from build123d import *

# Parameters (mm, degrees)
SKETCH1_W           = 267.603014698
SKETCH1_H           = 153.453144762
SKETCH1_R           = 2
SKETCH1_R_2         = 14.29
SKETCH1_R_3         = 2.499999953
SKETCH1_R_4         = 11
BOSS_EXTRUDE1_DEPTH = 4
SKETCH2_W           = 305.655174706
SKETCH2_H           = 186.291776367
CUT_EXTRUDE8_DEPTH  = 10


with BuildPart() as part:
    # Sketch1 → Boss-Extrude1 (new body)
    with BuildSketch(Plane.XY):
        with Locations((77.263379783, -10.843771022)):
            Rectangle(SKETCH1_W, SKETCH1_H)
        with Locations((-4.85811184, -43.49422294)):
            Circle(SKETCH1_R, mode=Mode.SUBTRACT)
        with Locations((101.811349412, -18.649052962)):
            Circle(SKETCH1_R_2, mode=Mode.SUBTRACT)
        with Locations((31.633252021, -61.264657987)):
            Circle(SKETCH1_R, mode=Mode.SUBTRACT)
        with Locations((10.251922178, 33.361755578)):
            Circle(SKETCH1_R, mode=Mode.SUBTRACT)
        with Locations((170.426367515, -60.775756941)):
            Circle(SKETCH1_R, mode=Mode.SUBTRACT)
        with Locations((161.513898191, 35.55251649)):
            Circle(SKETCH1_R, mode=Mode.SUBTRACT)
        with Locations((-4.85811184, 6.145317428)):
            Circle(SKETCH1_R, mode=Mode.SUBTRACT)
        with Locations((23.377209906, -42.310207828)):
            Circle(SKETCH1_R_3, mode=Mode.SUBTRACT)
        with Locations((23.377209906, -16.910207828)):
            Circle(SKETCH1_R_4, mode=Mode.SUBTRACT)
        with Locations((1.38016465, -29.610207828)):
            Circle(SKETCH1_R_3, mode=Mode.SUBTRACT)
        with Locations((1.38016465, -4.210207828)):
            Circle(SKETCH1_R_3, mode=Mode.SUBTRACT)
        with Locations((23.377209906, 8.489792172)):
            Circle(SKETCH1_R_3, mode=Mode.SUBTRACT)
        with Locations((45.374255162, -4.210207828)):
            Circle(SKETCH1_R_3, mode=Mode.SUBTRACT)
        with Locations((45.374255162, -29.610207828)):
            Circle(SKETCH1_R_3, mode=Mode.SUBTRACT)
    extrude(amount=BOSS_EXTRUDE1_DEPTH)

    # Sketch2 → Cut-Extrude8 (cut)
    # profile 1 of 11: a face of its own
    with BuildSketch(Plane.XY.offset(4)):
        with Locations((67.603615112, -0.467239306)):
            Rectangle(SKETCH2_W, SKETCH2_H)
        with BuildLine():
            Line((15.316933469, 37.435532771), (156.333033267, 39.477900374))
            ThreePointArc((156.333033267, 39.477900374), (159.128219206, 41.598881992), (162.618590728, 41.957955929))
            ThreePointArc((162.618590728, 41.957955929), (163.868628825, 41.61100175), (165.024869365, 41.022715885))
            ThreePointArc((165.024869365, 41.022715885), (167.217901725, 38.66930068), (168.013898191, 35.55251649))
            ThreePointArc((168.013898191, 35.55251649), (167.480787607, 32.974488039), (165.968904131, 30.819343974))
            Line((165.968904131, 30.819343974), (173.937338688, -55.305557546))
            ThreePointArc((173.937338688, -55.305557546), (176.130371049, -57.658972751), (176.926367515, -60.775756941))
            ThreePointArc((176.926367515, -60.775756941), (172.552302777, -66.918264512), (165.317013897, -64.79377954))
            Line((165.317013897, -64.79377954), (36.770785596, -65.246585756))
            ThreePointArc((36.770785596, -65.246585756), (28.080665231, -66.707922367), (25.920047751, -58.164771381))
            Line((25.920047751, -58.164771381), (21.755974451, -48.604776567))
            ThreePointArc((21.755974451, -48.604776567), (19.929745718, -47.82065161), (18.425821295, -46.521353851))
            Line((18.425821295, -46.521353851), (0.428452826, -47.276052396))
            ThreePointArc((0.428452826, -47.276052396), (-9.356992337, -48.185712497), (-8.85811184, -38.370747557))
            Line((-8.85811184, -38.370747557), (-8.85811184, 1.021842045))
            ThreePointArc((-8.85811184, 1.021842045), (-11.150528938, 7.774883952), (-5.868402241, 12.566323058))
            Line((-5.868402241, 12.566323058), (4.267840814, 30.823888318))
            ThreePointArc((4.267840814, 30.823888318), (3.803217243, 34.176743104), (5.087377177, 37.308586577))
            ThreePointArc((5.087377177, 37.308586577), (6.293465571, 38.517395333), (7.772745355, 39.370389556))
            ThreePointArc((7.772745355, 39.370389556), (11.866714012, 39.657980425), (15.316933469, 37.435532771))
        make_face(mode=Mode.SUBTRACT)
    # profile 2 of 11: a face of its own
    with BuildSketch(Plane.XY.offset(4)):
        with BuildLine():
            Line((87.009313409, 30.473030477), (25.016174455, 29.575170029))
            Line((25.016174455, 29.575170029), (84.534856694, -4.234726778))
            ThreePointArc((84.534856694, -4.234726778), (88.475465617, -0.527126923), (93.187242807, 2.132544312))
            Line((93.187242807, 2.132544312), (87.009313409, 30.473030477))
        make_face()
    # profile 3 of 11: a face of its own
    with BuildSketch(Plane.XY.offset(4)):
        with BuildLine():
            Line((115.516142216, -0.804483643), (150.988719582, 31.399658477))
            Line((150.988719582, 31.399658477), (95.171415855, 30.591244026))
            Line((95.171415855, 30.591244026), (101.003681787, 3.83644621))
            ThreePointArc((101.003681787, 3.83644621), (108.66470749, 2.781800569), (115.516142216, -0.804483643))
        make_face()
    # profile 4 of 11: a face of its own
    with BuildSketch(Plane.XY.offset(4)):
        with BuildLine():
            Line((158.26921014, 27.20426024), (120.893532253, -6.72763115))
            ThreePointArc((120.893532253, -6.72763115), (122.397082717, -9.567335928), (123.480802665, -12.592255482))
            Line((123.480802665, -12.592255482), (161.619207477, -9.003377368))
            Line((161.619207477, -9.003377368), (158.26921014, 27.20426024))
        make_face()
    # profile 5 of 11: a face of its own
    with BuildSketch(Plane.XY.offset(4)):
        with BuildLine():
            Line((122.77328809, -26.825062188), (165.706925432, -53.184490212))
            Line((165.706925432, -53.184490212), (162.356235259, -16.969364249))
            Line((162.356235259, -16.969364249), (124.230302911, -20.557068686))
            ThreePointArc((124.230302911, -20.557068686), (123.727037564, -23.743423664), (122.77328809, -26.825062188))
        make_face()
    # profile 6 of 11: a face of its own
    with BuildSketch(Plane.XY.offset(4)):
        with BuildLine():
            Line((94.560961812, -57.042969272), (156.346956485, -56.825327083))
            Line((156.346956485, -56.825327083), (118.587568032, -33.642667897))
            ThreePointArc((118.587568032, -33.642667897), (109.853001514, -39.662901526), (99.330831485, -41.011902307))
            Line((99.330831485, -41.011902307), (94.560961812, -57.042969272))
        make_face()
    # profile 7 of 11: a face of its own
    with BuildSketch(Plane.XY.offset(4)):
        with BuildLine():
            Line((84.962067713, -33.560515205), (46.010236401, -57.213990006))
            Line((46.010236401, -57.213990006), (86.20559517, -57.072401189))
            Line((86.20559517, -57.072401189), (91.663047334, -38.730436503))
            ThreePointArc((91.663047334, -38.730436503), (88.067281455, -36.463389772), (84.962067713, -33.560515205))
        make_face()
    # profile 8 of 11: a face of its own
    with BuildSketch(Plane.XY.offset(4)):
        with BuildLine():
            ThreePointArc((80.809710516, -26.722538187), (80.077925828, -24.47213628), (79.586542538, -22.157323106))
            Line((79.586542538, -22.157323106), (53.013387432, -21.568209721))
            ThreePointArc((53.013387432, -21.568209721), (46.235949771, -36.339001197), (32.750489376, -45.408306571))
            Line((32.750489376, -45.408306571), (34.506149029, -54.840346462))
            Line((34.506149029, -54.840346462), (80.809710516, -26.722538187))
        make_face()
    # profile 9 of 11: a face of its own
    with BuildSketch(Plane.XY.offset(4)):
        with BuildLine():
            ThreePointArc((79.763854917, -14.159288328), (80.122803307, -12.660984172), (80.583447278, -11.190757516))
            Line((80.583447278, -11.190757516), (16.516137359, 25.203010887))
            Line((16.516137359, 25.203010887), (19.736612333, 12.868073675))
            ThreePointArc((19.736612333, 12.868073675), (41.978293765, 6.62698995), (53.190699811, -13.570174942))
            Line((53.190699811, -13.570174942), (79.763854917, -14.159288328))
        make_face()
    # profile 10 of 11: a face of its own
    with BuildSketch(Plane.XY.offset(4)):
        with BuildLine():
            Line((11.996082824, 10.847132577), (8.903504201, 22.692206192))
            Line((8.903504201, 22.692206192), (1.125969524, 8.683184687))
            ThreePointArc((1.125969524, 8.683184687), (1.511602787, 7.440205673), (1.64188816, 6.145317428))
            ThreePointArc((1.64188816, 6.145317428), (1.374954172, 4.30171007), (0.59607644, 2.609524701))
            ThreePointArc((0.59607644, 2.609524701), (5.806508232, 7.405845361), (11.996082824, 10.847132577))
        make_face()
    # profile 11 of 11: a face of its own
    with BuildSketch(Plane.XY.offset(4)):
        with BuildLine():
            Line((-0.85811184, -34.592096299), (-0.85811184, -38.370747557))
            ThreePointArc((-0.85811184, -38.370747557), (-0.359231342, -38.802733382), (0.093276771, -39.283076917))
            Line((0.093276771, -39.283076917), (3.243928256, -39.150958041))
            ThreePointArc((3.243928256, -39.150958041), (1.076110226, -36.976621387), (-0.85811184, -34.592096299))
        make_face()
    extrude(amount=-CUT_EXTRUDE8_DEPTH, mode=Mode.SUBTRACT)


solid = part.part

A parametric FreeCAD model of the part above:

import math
import FreeCAD as App
import Part
import Sketcher

doc = App.newDocument("Part")
body = doc.addObject("PartDesign::Body", "Body")

# Sketch on XY plane
sketch1 = doc.addObject("Sketcher::SketchObject", "Sketch")
body.addObject(sketch1)
sketch1.AttachmentSupport = (doc.XY_Plane, [""])
sketch1.MapMode = "FlatFace"
sketch1.addGeometry([
    Part.LineSegment(App.Vector(-56.538128, 65.882801, 0), App.Vector(-56.538128, -87.570343, 0)),  # 0
    Part.LineSegment(App.Vector(-56.538128, -87.570343, 0), App.Vector(211.064887, -87.570343, 0)),  # 1
    Part.LineSegment(App.Vector(211.064887, -87.570343, 0), App.Vector(211.064887, 65.882801, 0)),  # 2
    Part.LineSegment(App.Vector(211.064887, 65.882801, 0), App.Vector(-56.538128, 65.882801, 0)),  # 3
    Part.Circle(App.Vector(31.633252, -61.264658, 0), App.Vector(0, 0, 1), 2),  # 4
    Part.Circle(App.Vector(-4.858112, -43.494223, 0), App.Vector(0, 0, 1), 2),  # 5
    Part.Circle(App.Vector(23.37721, -42.310208, 0), App.Vector(0, 0, 1), 2.5),  # 6
    Part.Circle(App.Vector(1.380165, -29.610208, 0), App.Vector(0, 0, 1), 2.5),  # 7
    Part.Circle(App.Vector(23.37721, -16.910208, 0), App.Vector(0, 0, 1), 11),  # 8
    Part.Circle(App.Vector(45.374255, -29.610208, 0), App.Vector(0, 0, 1), 2.5),  # 9
    Part.Circle(App.Vector(170.426368, -60.775757, 0), App.Vector(0, 0, 1), 2),  # 10
    Part.Circle(App.Vector(101.811349, -18.649053, 0), App.Vector(0, 0, 1), 14.29),  # 11
    Part.Circle(App.Vector(1.380165, -4.210208, 0), App.Vector(0, 0, 1), 2.5),  # 12
    Part.Circle(App.Vector(-4.858112, 6.145317, 0), App.Vector(0, 0, 1), 2),  # 13
    Part.Circle(App.Vector(23.37721, 8.489792, 0), App.Vector(0, 0, 1), 2.5),  # 14
    Part.Circle(App.Vector(45.374255, -4.210208, 0), App.Vector(0, 0, 1), 2.5),  # 15
    Part.Circle(App.Vector(10.251922, 33.361756, 0), App.Vector(0, 0, 1), 2),  # 16
    Part.Circle(App.Vector(161.513898, 35.552516, 0), App.Vector(0, 0, 1), 2),  # 17
], False)
sketch1.addConstraint([
    Sketcher.Constraint("Coincident", 0, 2, 1, 1),
    Sketcher.Constraint("Coincident", 1, 2, 2, 1),
    Sketcher.Constraint("Coincident", 2, 2, 3, 1),
    Sketcher.Constraint("Coincident", 3, 2, 0, 1),
    Sketcher.Constraint("Vertical", 0),
    Sketcher.Constraint("Horizontal", 1),
    Sketcher.Constraint("Vertical", 2),
    Sketcher.Constraint("Horizontal", 3),
    Sketcher.Constraint("Equal", 4, 5),
    Sketcher.Constraint("Equal", 6, 7),
    Sketcher.Constraint("Equal", 7, 9),
    Sketcher.Constraint("Equal", 5, 10),
    Sketcher.Constraint("Equal", 9, 12),
    Sketcher.Constraint("Equal", 10, 13),
    Sketcher.Constraint("Equal", 12, 14),
    Sketcher.Constraint("Equal", 14, 15),
    Sketcher.Constraint("Equal", 13, 16),
    Sketcher.Constraint("Equal", 16, 17),
    Sketcher.Constraint("Horizontal", 7, 3, 9, 3),
    Sketcher.Constraint("Horizontal", 12, 3, 15, 3),
    Sketcher.Constraint("Vertical", 6, 3, 8, 3),
    Sketcher.Constraint("Vertical", 7, 3, 12, 3),
    Sketcher.Constraint("Vertical", 5, 3, 13, 3),
    Sketcher.Constraint("Vertical", 8, 3, 14, 3),
    Sketcher.Constraint("Vertical", 9, 3, 15, 3),
    Sketcher.Constraint("Diameter", 4, 4.0),
    Sketcher.Constraint("Diameter", 6, 5.0),
    Sketcher.Constraint("Diameter", 8, 22.0),
    Sketcher.Constraint("Diameter", 11, 28.58),
    Sketcher.Constraint("DistanceY", 6, 3, 7, 3, 12.7),
    Sketcher.Constraint("DistanceY", 7, 3, 8, 3, 12.7),
    Sketcher.Constraint("DistanceY", 8, 3, 12, 3, 12.7),
    Sketcher.Constraint("DistanceY", 12, 3, 14, 3, 12.7),
    Sketcher.Constraint("DistanceX", -1, 1, 17, 3, 161.513898),
    Sketcher.Constraint("DistanceY", -1, 1, 2, 2, 65.882801),
    Sketcher.Constraint("DistanceY", 4, 3, 10, 3, 0.488901),
    Sketcher.Constraint("DistanceX", 1, 1, 1, 2, 267.603015),
    Sketcher.Constraint("DistanceY", 0, 2, 0, 1, 153.453145),
    Sketcher.Constraint("DistanceX", 5, 3, -1, 1, 4.858112),
    Sketcher.Constraint("DistanceX", -1, 1, 6, 3, 23.37721),
    Sketcher.Constraint("DistanceX", -1, 1, 11, 3, 101.811349),
    Sketcher.Constraint("DistanceY", 4, 3, 6, 3, 18.95445),
    Sketcher.Constraint("DistanceX", 7, 3, 9, 3, 43.994091),
    Sketcher.Constraint("DistanceX", 11, 3, 10, 3, 68.615018),
    Sketcher.Constraint("DistanceY", 5, 3, 13, 3, 49.63954),
    Sketcher.Constraint("DistanceY", 13, 3, 16, 3, 27.216438),
    Sketcher.Constraint("DistanceY", 11, 3, 17, 3, 54.201569),
    Sketcher.Constraint("DistanceY", 0, 2, 5, 3, 44.07612),
    Sketcher.Constraint("DistanceX", 0, 2, 4, 3, 88.17138),
    Sketcher.Constraint("DistanceX", 10, 3, 1, 2, 40.63852),
    Sketcher.Constraint("DistanceY", 1, 2, 11, 3, 68.92129),
    Sketcher.Constraint("DistanceX", 9, 3, 1, 2, 165.690632),
    Sketcher.Constraint("DistanceY", 10, 3, 2, 2, 126.658558),
    Sketcher.Constraint("DistanceX", 3, 2, 16, 3, 66.79005),
])
pad1 = doc.addObject("PartDesign::Pad", "Pad")
body.addObject(pad1)
pad1.Profile = sketch1
pad1.Length = 4

# Sketch on XY plane
sketch2 = doc.addObject("Sketcher::SketchObject", "Sketch001")
body.addObject(sketch2)
sketch2.AttachmentSupport = (doc.XY_Plane, [""])
sketch2.MapMode = "FlatFace"
sketch2.AttachmentOffset = App.Placement(App.Vector(0, 0, 4), App.Rotation())
sketch2.addGeometry([
    Part.LineSegment(App.Vector(-85.223972, 92.678649, 0), App.Vector(-85.223972, -93.613127, 0)),  # 0
    Part.LineSegment(App.Vector(-85.223972, -93.613127, 0), App.Vector(220.431202, -93.613127, 0)),  # 1
    Part.LineSegment(App.Vector(220.431202, -93.613127, 0), App.Vector(220.431202, 92.678649, 0)),  # 2
    Part.LineSegment(App.Vector(220.431202, 92.678649, 0), App.Vector(-85.223972, 92.678649, 0)),  # 3
    Part.ArcOfCircle(Part.Circle(App.Vector(10.251922, 33.361756, 0), App.Vector(0, 0, 1), 6.5), math.radians(38.809642), math.radians(112.421161)),  # 4
    Part.LineSegment(App.Vector(15.316933, 37.435533, 0), App.Vector(156.333033, 39.4779, 0)),  # 5
    Part.ArcOfCircle(Part.Circle(App.Vector(161.513898, 35.552516, 0), App.Vector(0, 0, 1), 6.5), math.radians(80.214931), math.radians(142.849897)),  # 6
    Part.ArcOfCircle(Part.Circle(App.Vector(161.513898, 35.552516, 0), App.Vector(0, 0, 1), 6.5), math.radians(57.30619), math.radians(80.214931)),  # 7
    Part.ArcOfCircle(Part.Circle(App.Vector(161.513898, 35.552516, 0), App.Vector(0, 0, 1), 6.5), math.radians(0), math.radians(57.306189)),  # 8
    Part.ArcOfCircle(Part.Circle(App.Vector(161.513898, 35.552516, 0), App.Vector(0, 0, 1), 6.5), math.radians(-46.734066), math.radians(0)),  # 9
    Part.LineSegment(App.Vector(165.968904, 30.819344, 0), App.Vector(173.937339, -55.305558, 0)),  # 10
    Part.ArcOfCircle(Part.Circle(App.Vector(170.426368, -60.775757, 0), App.Vector(0, 0, 1), 6.5), math.radians(0), math.radians(57.30619)),  # 11
    Part.ArcOfCircle(Part.Circle(App.Vector(170.426368, -60.775757, 0), App.Vector(0, 0, 1), 6.5), math.radians(-141.818303), math.radians(0)),  # 12
    Part.LineSegment(App.Vector(165.317014, -64.79378, 0), App.Vector(36.770786, -65.246586, 0)),  # 13
    Part.ArcOfCircle(Part.Circle(App.Vector(31.633252, -61.264658, 0), App.Vector(0, 0, 1), 6.5), math.radians(151.516502), math.radians(322.221952)),  # 14
    Part.LineSegment(App.Vector(25.920048, -58.164771, 0), App.Vector(21.755974, -48.604777, 0)),  # 15
    Part.ArcOfCircle(Part.Circle(App.Vector(23.37721, -42.310208, 0), App.Vector(0, 0, 1), 6.5), math.radians(-139.618903), math.radians(-104.443243)),  # 16
    Part.LineSegment(App.Vector(18.425821, -46.521354, 0), App.Vector(0.428453, -47.276052, 0)),  # 17
    Part.ArcOfCircle(Part.Circle(App.Vector(-4.858112, -43.494223, 0), App.Vector(0, 0, 1), 6.5), math.radians(127.979872), math.radians(324.421352)),  # 18
    Part.LineSegment(App.Vector(-8.858112, -38.370748, 0), App.Vector(-8.858112, 1.021842, 0)),  # 19
    Part.ArcOfCircle(Part.Circle(App.Vector(-4.858112, 6.145317, 0), App.Vector(0, 0, 1), 6.5), math.radians(98.941695), math.radians(232.020128)),  # 20
    Part.LineSegment(App.Vector(-5.868402, 12.566323, 0), App.Vector(4.267841, 30.823888, 0)),  # 21
    Part.ArcOfCircle(Part.Circle(App.Vector(10.251922, 33.361756, 0), App.Vector(0, 0, 1), 6.5), math.radians(142.612337), math.radians(202.98195)),  # 22
    Part.ArcOfCircle(Part.Circle(App.Vector(10.251922, 33.361756, 0), App.Vector(0, 0, 1), 6.5), math.radians(112.421161), math.radians(142.612337)),  # 23
    Part.LineSegment(App.Vector(87.009313, 30.47303, 0), App.Vector(25.016174, 29.57517, 0)),  # 24
    Part.LineSegment(App.Vector(25.016174, 29.57517, 0), App.Vector(84.534857, -4.234727, 0)),  # 25
    Part.ArcOfCircle(Part.Circle(App.Vector(101.811349, -18.649053, 0), App.Vector(0, 0, 1), 22.5), math.radians(112.537847), math.radians(140.160686)),  # 26
    Part.LineSegment(App.Vector(93.187243, 2.132544, 0), App.Vector(87.009313, 30.47303, 0)),  # 27
    Part.LineSegment(App.Vector(115.516142, -0.804484, 0), App.Vector(150.98872, 31.399658, 0)),  # 28
    Part.LineSegment(App.Vector(150.98872, 31.399658, 0), App.Vector(95.171416, 30.591244, 0)),  # 29
    Part.LineSegment(App.Vector(95.171416, 30.591244, 0), App.Vector(101.003682, 3.836446, 0)),  # 30
    Part.ArcOfCircle(Part.Circle(App.Vector(101.811349, -18.649053, 0), App.Vector(0, 0, 1), 22.5), math.radians(52.475407), math.radians(92.057151)),  # 31
    Part.LineSegment(App.Vector(158.26921, 27.20426, 0), App.Vector(120.893532, -6.727631, 0)),  # 32
    Part.ArcOfCircle(Part.Circle(App.Vector(101.811349, -18.649053, 0), App.Vector(0, 0, 1), 22.5), math.radians(15.616132), math.radians(31.99471)),  # 33
    Part.LineSegment(App.Vector(123.480803, -12.592255, 0), App.Vector(161.619207, -9.003377, 0)),  # 34
    Part.LineSegment(App.Vector(161.619207, -9.003377, 0), App.Vector(158.26921, 27.20426, 0)),  # 35
    Part.LineSegment(App.Vector(122.773288, -26.825062, 0), App.Vector(165.706925, -53.18449, 0)),  # 36
    Part.LineSegment(App.Vector(165.706925, -53.18449, 0), App.Vector(162.356235, -16.969364, 0)),  # 37
    Part.LineSegment(App.Vector(162.356235, -16.969364, 0), App.Vector(124.230303, -20.557069, 0)),  # 38
    Part.ArcOfCircle(Part.Circle(App.Vector(101.811349, -18.649053, 0), App.Vector(0, 0, 1), 22.5), math.radians(-21.307808), math.radians(-4.864564)),  # 39
    Part.LineSegment(App.Vector(94.560962, -57.042969, 0), App.Vector(156.346956, -56.825327, 0)),  # 40
    Part.LineSegment(App.Vector(156.346956, -56.825327, 0), App.Vector(118.587568, -33.642668, 0)),  # 41
    Part.ArcOfCircle(Part.Circle(App.Vector(101.811349, -18.649053, 0), App.Vector(0, 0, 1), 22.5), math.radians(-96.329453), math.radians(-41.788504)),  # 42
    Part.LineSegment(App.Vector(99.330831, -41.011902, 0), App.Vector(94.560962, -57.042969, 0)),  # 43
    Part.LineSegment(App.Vector(84.962068, -33.560515, 0), App.Vector(46.010236, -57.21399, 0)),  # 44
    Part.LineSegment(App.Vector(46.010236, -57.21399, 0), App.Vector(86.205595, -57.072401, 0)),  # 45
    Part.LineSegment(App.Vector(86.205595, -57.072401, 0), App.Vector(91.663047, -38.730437, 0)),  # 46
    Part.ArcOfCircle(Part.Circle(App.Vector(101.811349, -18.649053, 0), App.Vector(0, 0, 1), 22.5), math.radians(-138.491461), math.radians(-116.810149)),  # 47
    Part.ArcOfCircle(Part.Circle(App.Vector(101.811349, -18.649053, 0), App.Vector(0, 0, 1), 22.5), math.radians(-171.029662), math.radians(-158.972158)),  # 48
    Part.LineSegment(App.Vector(79.586543, -22.157323, 0), App.Vector(53.013387, -21.56821, 0)),  # 49
    Part.ArcOfCircle(Part.Circle(App.Vector(23.37721, -16.910208, 0), App.Vector(0, 0, 1), 30), math.radians(-71.793502), math.radians(-8.932266)),  # 50
    Part.LineSegment(App.Vector(32.750489, -45.408307, 0), App.Vector(34.506149, -54.840346, 0)),  # 51
    Part.LineSegment(App.Vector(34.506149, -54.840346, 0), App.Vector(80.809711, -26.722538, 0)),  # 52
    Part.ArcOfCircle(Part.Circle(App.Vector(101.811349, -18.649053, 0), App.Vector(0, 0, 1), 22.5), math.radians(160.641382), math.radians(168.489641)),  # 53
    Part.LineSegment(App.Vector(80.583447, -11.190758, 0), App.Vector(16.516137, 25.203011, 0)),  # 54
    Part.LineSegment(App.Vector(16.516137, 25.203011, 0), App.Vector(19.736612, 12.868074, 0)),  # 55
    Part.ArcOfCircle(Part.Circle(App.Vector(23.37721, -16.910208, 0), App.Vector(0, 0, 1), 30), math.radians(6.392245), math.radians(96.970209)),  # 56
    Part.LineSegment(App.Vector(53.1907, -13.570175, 0), App.Vector(79.763855, -14.159288, 0)),  # 57
    Part.LineSegment(App.Vector(11.996083, 10.847133, 0), App.Vector(8.903504, 22.692206, 0)),  # 58
    Part.LineSegment(App.Vector(8.903504, 22.692206, 0), App.Vector(1.12597, 8.683185, 0)),  # 59
    Part.ArcOfCircle(Part.Circle(App.Vector(-4.858112, 6.145317, 0), App.Vector(0, 0, 1), 6.5), math.radians(0), math.radians(22.98195)),  # 60
    Part.ArcOfCircle(Part.Circle(App.Vector(-4.858112, 6.145317, 0), App.Vector(0, 0, 1), 6.5), math.radians(-32.954176), math.radians(0)),  # 61
    Part.ArcOfCircle(Part.Circle(App.Vector(23.37721, -16.910208, 0), App.Vector(0, 0, 1), 30), math.radians(112.29472), math.radians(139.408788)),  # 62
    Part.LineSegment(App.Vector(-0.858112, -34.592096, 0), App.Vector(-0.858112, -38.370748, 0)),  # 63
    Part.ArcOfCircle(Part.Circle(App.Vector(-4.858112, -43.494223, 0), App.Vector(0, 0, 1), 6.5), math.radians(40.381097), math.radians(52.020128)),  # 64
    Part.LineSegment(App.Vector(0.093277, -39.283077, 0), App.Vector(3.243928, -39.150958, 0)),  # 65
    Part.ArcOfCircle(Part.Circle(App.Vector(23.37721, -16.910208, 0), App.Vector(0, 0, 1), 30), math.radians(-143.885822), math.radians(-132.152746)),  # 66
], False)
sketch2.addConstraint([
    Sketcher.Constraint("Coincident", 0, 2, 1, 1),
    Sketcher.Constraint("Coincident", 1, 2, 2, 1),
    Sketcher.Constraint("Coincident", 2, 2, 3, 1),
    Sketcher.Constraint("Coincident", 3, 2, 0, 1),
    Sketcher.Constraint("Coincident", 4, 1, 5, 1),
    Sketcher.Constraint("Coincident", 5, 2, 6, 2),
    Sketcher.Constraint("Coincident", 6, 1, 7, 2),
    Sketcher.Constraint("Coincident", 7, 1, 8, 2),
    Sketcher.Constraint("Coincident", 8, 1, 9, 2),
    Sketcher.Constraint("Coincident", 9, 1, 10, 1),
    Sketcher.Constraint("Coincident", 10, 2, 11, 2),
    Sketcher.Constraint("Coincident", 11, 1, 12, 2),
    Sketcher.Constraint("Coincident", 12, 1, 13, 1),
    Sketcher.Constraint("Coincident", 13, 2, 14, 2),
    Sketcher.Constraint("Coincident", 14, 1, 15, 1),
    Sketcher.Constraint("Coincident", 15, 2, 16, 2),
    Sketcher.Constraint("Coincident", 16, 1, 17, 1),
    Sketcher.Constraint("Coincident", 17, 2, 18, 2),
    Sketcher.Constraint("Coincident", 18, 1, 19, 1),
    Sketcher.Constraint("Coincident", 19, 2, 20, 2),
    Sketcher.Constraint("Coincident", 20, 1, 21, 1),
    Sketcher.Constraint("Coincident", 21, 2, 22, 2),
    Sketcher.Constraint("Coincident", 22, 1, 23, 2),
    Sketcher.Constraint("Coincident", 23, 1, 4, 2),
    Sketcher.Constraint("Coincident", 24, 2, 25, 1),
    Sketcher.Constraint("Coincident", 25, 2, 26, 2),
    Sketcher.Constraint("Coincident", 26, 1, 27, 1),
    Sketcher.Constraint("Coincident", 27, 2, 24, 1),
    Sketcher.Constraint("Coincident", 28, 2, 29, 1),
    Sketcher.Constraint("Coincident", 29, 2, 30, 1),
    Sketcher.Constraint("Coincident", 30, 2, 31, 2),
    Sketcher.Constraint("Coincident", 31, 1, 28, 1),
    Sketcher.Constraint("Coincident", 32, 2, 33, 2),
    Sketcher.Constraint("Coincident", 33, 1, 34, 1),
    Sketcher.Constraint("Coincident", 34, 2, 35, 1),
    Sketcher.Constraint("Coincident", 35, 2, 32, 1),
    Sketcher.Constraint("Coincident", 36, 2, 37, 1),
    Sketcher.Constraint("Coincident", 37, 2, 38, 1),
    Sketcher.Constraint("Coincident", 38, 2, 39, 2),
    Sketcher.Constraint("Coincident", 39, 1, 36, 1),
    Sketcher.Constraint("Coincident", 40, 2, 41, 1),
    Sketcher.Constraint("Coincident", 41, 2, 42, 2),
    Sketcher.Constraint("Coincident", 42, 1, 43, 1),
    Sketcher.Constraint("Coincident", 43, 2, 40, 1),
    Sketcher.Constraint("Coincident", 44, 2, 45, 1),
    Sketcher.Constraint("Coincident", 45, 2, 46, 1),
    Sketcher.Constraint("Coincident", 46, 2, 47, 2),
    Sketcher.Constraint("Coincident", 47, 1, 44, 1),
    Sketcher.Constraint("Coincident", 48, 1, 49, 1),
    Sketcher.Constraint("Coincident", 49, 2, 50, 2),
    Sketcher.Constraint("Coincident", 50, 1, 51, 1),
    Sketcher.Constraint("Coincident", 51, 2, 52, 1),
    Sketcher.Constraint("Coincident", 52, 2, 48, 2),
    Sketcher.Constraint("Coincident", 53, 1, 54, 1),
    Sketcher.Constraint("Coincident", 54, 2, 55, 1),
    Sketcher.Constraint("Coincident", 55, 2, 56, 2),
    Sketcher.Constraint("Coincident", 56, 1, 57, 1),
    Sketcher.Constraint("Coincident", 57, 2, 53, 2),
    Sketcher.Constraint("Coincident", 58, 2, 59, 1),
    Sketcher.Constraint("Coincident", 59, 2, 60, 2),
    Sketcher.Constraint("Coincident", 60, 1, 61, 2),
    Sketcher.Constraint("Coincident", 61, 1, 62, 2),
    Sketcher.Constraint("Coincident", 62, 1, 58, 1),
    Sketcher.Constraint("Coincident", 63, 2, 64, 2),
    Sketcher.Constraint("Coincident", 64, 1, 65, 1),
    Sketcher.Constraint("Coincident", 65, 2, 66, 2),
    Sketcher.Constraint("Coincident", 66, 1, 63, 1),
    Sketcher.Constraint("Vertical", 0),
    Sketcher.Constraint("Horizontal", 1),
    Sketcher.Constraint("Vertical", 2),
    Sketcher.Constraint("Horizontal", 3),
    Sketcher.Constraint("Vertical", 19),
    Sketcher.Constraint("Vertical", 63),
    Sketcher.Constraint("Coincident", 7, 3, 6, 3),
    Sketcher.Constraint("Coincident", 8, 3, 6, 3),
    Sketcher.Constraint("Coincident", 9, 3, 6, 3),
    Sketcher.Constraint("Coincident", 12, 3, 11, 3),
    Sketcher.Constraint("Coincident", 22, 3, 4, 3),
    Sketcher.Constraint("Coincident", 23, 3, 4, 3),
    Sketcher.Constraint("Coincident", 31, 3, 26, 3),
    Sketcher.Constraint("Coincident", 33, 3, 26, 3),
    Sketcher.Constraint("Coincident", 39, 3, 26, 3),
    Sketcher.Constraint("Coincident", 42, 3, 26, 3),
    Sketcher.Constraint("Coincident", 47, 3, 26, 3),
    Sketcher.Constraint("Coincident", 48, 3, 26, 3),
    Sketcher.Constraint("Coincident", 53, 3, 26, 3),
    Sketcher.Constraint("Coincident", 56, 3, 50, 3),
    Sketcher.Constraint("Coincident", 60, 3, 20, 3),
    Sketcher.Constraint("Coincident", 61, 3, 20, 3),
    Sketcher.Constraint("Coincident", 62, 3, 50, 3),
    Sketcher.Constraint("Coincident", 64, 3, 18, 3),
    Sketcher.Constraint("Coincident", 66, 3, 50, 3),
    Sketcher.Constraint("Radius", 50, 30.0),
    Sketcher.Constraint("Radius", 56, 30.0),
    Sketcher.Constraint("Radius", 62, 30.0),
    Sketcher.Constraint("Radius", 66, 30.0),
    Sketcher.Constraint("Radius", 4, 6.5),
    Sketcher.Constraint("Radius", 6, 6.5),
    Sketcher.Constraint("Radius", 11, 6.5),
    Sketcher.Constraint("Radius", 14, 6.5),
    Sketcher.Constraint("Radius", 16, 6.5),
    Sketcher.Constraint("Radius", 18, 6.5),
    Sketcher.Constraint("Radius", 20, 6.5),
    Sketcher.Constraint("Radius", 26, 22.5),
    Sketcher.Constraint("Radius", 31, 22.5),
    Sketcher.Constraint("Radius", 33, 22.5),
    Sketcher.Constraint("Radius", 39, 22.5),
    Sketcher.Constraint("Radius", 42, 22.5),
    Sketcher.Constraint("Radius", 47, 22.5),
    Sketcher.Constraint("Radius", 48, 22.5),
    Sketcher.Constraint("Radius", 53, 22.5),
    Sketcher.Constraint("Radius", 60, 6.5),
    Sketcher.Constraint("Radius", 64, 6.5),
    Sketcher.Constraint("Distance", 37, 36.369802),
    Sketcher.Constraint("DistanceY", 19, 1, 19, 2, 39.39259),
    Sketcher.Constraint("DistanceY", 63, 2, 63, 1, 3.778651),
    Sketcher.Constraint("DistanceX", -1, 1, 6, 3, 161.513898),
    Sketcher.Constraint("DistanceY", -1, 1, 5, 2, 39.4779),
    Sketcher.Constraint("DistanceY", 45, 2, -1, 1, 57.072401),
    Sketcher.Constraint("DistanceX", -1, 1, 56, 1, 53.1907),
    Sketcher.Constraint("Distance", 5, 141.030889),
    Sketcher.Constraint("Distance", 21, 20.882579),
    Sketcher.Constraint("Distance", 24, 61.999641),
    Sketcher.Constraint("Distance", 34, 38.306892),
    Sketcher.Constraint("Distance", 35, 36.362281),
    Sketcher.Constraint("Distance", 43, 16.725632),
    Sketcher.Constraint("Distance", 45, 40.195608),
    Sketcher.Constraint("Distance", 65, 3.15342),
    Sketcher.Constraint("DistanceX", 1, 1, 1, 2, 305.655175),
    Sketcher.Constraint("DistanceY", 0, 2, 0, 1, 186.291776),
    Sketcher.Constraint("DistanceX", -1, 1, 16, 3, 23.37721),
    Sketcher.Constraint("DistanceX", 18, 3, -1, 1, 4.858112),
    Sketcher.Constraint("DistanceX", 20, 3, -1, 1, 4.858112),
    Sketcher.Constraint("DistanceX", -1, 1, 26, 3, 101.811349),
    Sketcher.Constraint("DistanceX", -1, 1, 50, 3, 23.37721),
    Sketcher.Constraint("DistanceY", -1, 1, 2, 2, 92.678649),
    Sketcher.Constraint("DistanceX", -1, 1, 6, 1, 162.618591),
    Sketcher.Constraint("DistanceX", -1, 1, 7, 1, 165.024869),
    Sketcher.Constraint("DistanceX", -1, 1, 10, 2, 173.937339),
    Sketcher.Constraint("DistanceY", 12, 1, -1, 1, 64.79378),
    Sketcher.Constraint("DistanceY", 14, 1, -1, 1, 58.164771),
    Sketcher.Constraint("DistanceX", -1, 1, 16, 1, 18.425821),
    Sketcher.Constraint("DistanceX", 18, 1, -1, 1, 8.858112),
    Sketcher.Constraint("DistanceX", -1, 1, 21, 2, 4.267841),
    Sketcher.Constraint("DistanceY", -1, 1, 21, 2, 30.823888),
    Sketcher.Constraint("DistanceY", -1, 1, 23, 1, 39.37039),
    Sketcher.Constraint("DistanceY", -1, 1, 24, 2, 29.57517),
    Sketcher.Constraint("DistanceY", -1, 1, 27, 2, 30.47303),
    Sketcher.Constraint("DistanceX", -1, 1, 28, 2, 150.98872),
    Sketcher.Constraint("DistanceY", -1, 1, 28, 2, 31.399658),
    Sketcher.Constraint("DistanceX", -1, 1, 30, 2, 101.003682),
    Sketcher.Constraint("DistanceY", 32, 2, -1, 1, 6.727631),
    Sketcher.Constraint("DistanceX", -1, 1, 35, 2, 158.26921),
    Sketcher.Constraint("DistanceY", -1, 1, 35, 2, 27.20426),
    Sketcher.Constraint("DistanceY", 36, 2, -1, 1, 53.18449),
    Sketcher.Constraint("DistanceY", 38, 2, -1, 1, 20.557069),
    Sketcher.Constraint("DistanceX", -1, 1, 39, 1, 122.773288),
    Sketcher.Constraint("DistanceX", -1, 1, 41, 2, 118.587568),
    Sketcher.Constraint("DistanceX", -1, 1, 42, 1, 99.330831),
    Sketcher.Constraint("DistanceX", -1, 1, 43, 2, 94.560962),
    Sketcher.Constraint("DistanceY", 43, 2, -1, 1, 57.042969),
    Sketcher.Constraint("DistanceY", 44, 2, -1, 1, 57.21399),
    Sketcher.Constraint("DistanceY", 49, 2, -1, 1, 21.56821),
    Sketcher.Constraint("DistanceX", -1, 1, 50, 1, 32.750489),
    Sketcher.Constraint("DistanceX", -1, 1, 51, 2, 34.506149),
    Sketcher.Constraint("DistanceX", -1, 1, 52, 2, 80.809711),
    Sketcher.Constraint("DistanceY", -1, 1, 54, 2, 25.203011),
    Sketcher.Constraint("DistanceY", 57, 2, -1, 1, 14.159288),
    Sketcher.Constraint("DistanceX", -1, 1, 59, 2, 1.12597),
    Sketcher.Constraint("DistanceX", 63, 2, -1, 1, 0.858112),
    Sketcher.Constraint("DistanceX", -1, 1, 65, 2, 3.243928),
    Sketcher.Constraint("DistanceY", 65, 2, -1, 1, 39.150958),
    Sketcher.Constraint("Distance", 10, 86.492743),
    Sketcher.Constraint("Distance", 13, 128.547026),
    Sketcher.Constraint("Distance", 15, 10.427512),
    Sketcher.Constraint("Distance", 17, 18.013185),
    Sketcher.Constraint("Distance", 25, 68.451316),
    Sketcher.Constraint("Distance", 27, 29.006033),
    Sketcher.Constraint("Distance", 28, 47.910443),
    Sketcher.Constraint("Distance", 29, 55.823158),
    Sketcher.Constraint("Distance", 30, 27.383107),
    Sketcher.Constraint("Distance", 36, 50.379725),
    Sketcher.Constraint("Distance", 38, 38.294364),
    Sketcher.Constraint("Distance", 40, 61.786378),
    Sketcher.Constraint("Distance", 41, 44.308093),
    Sketcher.Constraint("Distance", 44, 45.571175),
    Sketcher.Constraint("Distance", 46, 19.136652),
    Sketcher.Constraint("Distance", 49, 26.579684),
    Sketcher.Constraint("Distance", 51, 9.594046),
    Sketcher.Constraint("Distance", 54, 73.682607),
    Sketcher.Constraint("Distance", 55, 12.748417),
    Sketcher.Constraint("Distance", 58, 12.242133),
    Sketcher.Constraint("Distance", 59, 16.023193),
    Sketcher.Constraint("DistanceX", -1, 1, 4, 3, 10.251922),
    Sketcher.Constraint("DistanceY", -1, 1, 6, 3, 35.552516),
    Sketcher.Constraint("DistanceX", -1, 1, 11, 3, 170.426368),
    Sketcher.Constraint("DistanceY", 11, 3, -1, 1, 60.775757),
    Sketcher.Constraint("DistanceX", -1, 1, 14, 3, 31.633252),
    Sketcher.Constraint("DistanceY", 14, 3, -1, 1, 61.264658),
    Sketcher.Constraint("DistanceY", 16, 3, -1, 1, 42.310208),
    Sketcher.Constraint("DistanceX", 0, 2, -1, 1, 85.223972),
    Sketcher.Constraint("DistanceY", -1, 1, 8, 1, 35.552516),
    Sketcher.Constraint("DistanceY", 11, 1, -1, 1, 60.775757),
    Sketcher.Constraint("DistanceX", -1, 1, 22, 1, 5.087377),
    Sketcher.Constraint("DistanceX", -1, 1, 24, 2, 25.016174),
    Sketcher.Constraint("DistanceX", -1, 1, 33, 1, 123.480803),
    Sketcher.Constraint("DistanceX", -1, 1, 44, 2, 46.010236),
    Sketcher.Constraint("DistanceX", -1, 1, 53, 1, 80.583447),
    Sketcher.Constraint("DistanceX", -1, 1, 58, 2, 8.903504),
    Sketcher.Constraint("DistanceY", -1, 1, 60, 1, 6.145317),
])
pocket1 = doc.addObject("PartDesign::Pocket", "Pocket")
body.addObject(pocket1)
pocket1.Profile = sketch2
pocket1.Length = 10

doc.recompute()
